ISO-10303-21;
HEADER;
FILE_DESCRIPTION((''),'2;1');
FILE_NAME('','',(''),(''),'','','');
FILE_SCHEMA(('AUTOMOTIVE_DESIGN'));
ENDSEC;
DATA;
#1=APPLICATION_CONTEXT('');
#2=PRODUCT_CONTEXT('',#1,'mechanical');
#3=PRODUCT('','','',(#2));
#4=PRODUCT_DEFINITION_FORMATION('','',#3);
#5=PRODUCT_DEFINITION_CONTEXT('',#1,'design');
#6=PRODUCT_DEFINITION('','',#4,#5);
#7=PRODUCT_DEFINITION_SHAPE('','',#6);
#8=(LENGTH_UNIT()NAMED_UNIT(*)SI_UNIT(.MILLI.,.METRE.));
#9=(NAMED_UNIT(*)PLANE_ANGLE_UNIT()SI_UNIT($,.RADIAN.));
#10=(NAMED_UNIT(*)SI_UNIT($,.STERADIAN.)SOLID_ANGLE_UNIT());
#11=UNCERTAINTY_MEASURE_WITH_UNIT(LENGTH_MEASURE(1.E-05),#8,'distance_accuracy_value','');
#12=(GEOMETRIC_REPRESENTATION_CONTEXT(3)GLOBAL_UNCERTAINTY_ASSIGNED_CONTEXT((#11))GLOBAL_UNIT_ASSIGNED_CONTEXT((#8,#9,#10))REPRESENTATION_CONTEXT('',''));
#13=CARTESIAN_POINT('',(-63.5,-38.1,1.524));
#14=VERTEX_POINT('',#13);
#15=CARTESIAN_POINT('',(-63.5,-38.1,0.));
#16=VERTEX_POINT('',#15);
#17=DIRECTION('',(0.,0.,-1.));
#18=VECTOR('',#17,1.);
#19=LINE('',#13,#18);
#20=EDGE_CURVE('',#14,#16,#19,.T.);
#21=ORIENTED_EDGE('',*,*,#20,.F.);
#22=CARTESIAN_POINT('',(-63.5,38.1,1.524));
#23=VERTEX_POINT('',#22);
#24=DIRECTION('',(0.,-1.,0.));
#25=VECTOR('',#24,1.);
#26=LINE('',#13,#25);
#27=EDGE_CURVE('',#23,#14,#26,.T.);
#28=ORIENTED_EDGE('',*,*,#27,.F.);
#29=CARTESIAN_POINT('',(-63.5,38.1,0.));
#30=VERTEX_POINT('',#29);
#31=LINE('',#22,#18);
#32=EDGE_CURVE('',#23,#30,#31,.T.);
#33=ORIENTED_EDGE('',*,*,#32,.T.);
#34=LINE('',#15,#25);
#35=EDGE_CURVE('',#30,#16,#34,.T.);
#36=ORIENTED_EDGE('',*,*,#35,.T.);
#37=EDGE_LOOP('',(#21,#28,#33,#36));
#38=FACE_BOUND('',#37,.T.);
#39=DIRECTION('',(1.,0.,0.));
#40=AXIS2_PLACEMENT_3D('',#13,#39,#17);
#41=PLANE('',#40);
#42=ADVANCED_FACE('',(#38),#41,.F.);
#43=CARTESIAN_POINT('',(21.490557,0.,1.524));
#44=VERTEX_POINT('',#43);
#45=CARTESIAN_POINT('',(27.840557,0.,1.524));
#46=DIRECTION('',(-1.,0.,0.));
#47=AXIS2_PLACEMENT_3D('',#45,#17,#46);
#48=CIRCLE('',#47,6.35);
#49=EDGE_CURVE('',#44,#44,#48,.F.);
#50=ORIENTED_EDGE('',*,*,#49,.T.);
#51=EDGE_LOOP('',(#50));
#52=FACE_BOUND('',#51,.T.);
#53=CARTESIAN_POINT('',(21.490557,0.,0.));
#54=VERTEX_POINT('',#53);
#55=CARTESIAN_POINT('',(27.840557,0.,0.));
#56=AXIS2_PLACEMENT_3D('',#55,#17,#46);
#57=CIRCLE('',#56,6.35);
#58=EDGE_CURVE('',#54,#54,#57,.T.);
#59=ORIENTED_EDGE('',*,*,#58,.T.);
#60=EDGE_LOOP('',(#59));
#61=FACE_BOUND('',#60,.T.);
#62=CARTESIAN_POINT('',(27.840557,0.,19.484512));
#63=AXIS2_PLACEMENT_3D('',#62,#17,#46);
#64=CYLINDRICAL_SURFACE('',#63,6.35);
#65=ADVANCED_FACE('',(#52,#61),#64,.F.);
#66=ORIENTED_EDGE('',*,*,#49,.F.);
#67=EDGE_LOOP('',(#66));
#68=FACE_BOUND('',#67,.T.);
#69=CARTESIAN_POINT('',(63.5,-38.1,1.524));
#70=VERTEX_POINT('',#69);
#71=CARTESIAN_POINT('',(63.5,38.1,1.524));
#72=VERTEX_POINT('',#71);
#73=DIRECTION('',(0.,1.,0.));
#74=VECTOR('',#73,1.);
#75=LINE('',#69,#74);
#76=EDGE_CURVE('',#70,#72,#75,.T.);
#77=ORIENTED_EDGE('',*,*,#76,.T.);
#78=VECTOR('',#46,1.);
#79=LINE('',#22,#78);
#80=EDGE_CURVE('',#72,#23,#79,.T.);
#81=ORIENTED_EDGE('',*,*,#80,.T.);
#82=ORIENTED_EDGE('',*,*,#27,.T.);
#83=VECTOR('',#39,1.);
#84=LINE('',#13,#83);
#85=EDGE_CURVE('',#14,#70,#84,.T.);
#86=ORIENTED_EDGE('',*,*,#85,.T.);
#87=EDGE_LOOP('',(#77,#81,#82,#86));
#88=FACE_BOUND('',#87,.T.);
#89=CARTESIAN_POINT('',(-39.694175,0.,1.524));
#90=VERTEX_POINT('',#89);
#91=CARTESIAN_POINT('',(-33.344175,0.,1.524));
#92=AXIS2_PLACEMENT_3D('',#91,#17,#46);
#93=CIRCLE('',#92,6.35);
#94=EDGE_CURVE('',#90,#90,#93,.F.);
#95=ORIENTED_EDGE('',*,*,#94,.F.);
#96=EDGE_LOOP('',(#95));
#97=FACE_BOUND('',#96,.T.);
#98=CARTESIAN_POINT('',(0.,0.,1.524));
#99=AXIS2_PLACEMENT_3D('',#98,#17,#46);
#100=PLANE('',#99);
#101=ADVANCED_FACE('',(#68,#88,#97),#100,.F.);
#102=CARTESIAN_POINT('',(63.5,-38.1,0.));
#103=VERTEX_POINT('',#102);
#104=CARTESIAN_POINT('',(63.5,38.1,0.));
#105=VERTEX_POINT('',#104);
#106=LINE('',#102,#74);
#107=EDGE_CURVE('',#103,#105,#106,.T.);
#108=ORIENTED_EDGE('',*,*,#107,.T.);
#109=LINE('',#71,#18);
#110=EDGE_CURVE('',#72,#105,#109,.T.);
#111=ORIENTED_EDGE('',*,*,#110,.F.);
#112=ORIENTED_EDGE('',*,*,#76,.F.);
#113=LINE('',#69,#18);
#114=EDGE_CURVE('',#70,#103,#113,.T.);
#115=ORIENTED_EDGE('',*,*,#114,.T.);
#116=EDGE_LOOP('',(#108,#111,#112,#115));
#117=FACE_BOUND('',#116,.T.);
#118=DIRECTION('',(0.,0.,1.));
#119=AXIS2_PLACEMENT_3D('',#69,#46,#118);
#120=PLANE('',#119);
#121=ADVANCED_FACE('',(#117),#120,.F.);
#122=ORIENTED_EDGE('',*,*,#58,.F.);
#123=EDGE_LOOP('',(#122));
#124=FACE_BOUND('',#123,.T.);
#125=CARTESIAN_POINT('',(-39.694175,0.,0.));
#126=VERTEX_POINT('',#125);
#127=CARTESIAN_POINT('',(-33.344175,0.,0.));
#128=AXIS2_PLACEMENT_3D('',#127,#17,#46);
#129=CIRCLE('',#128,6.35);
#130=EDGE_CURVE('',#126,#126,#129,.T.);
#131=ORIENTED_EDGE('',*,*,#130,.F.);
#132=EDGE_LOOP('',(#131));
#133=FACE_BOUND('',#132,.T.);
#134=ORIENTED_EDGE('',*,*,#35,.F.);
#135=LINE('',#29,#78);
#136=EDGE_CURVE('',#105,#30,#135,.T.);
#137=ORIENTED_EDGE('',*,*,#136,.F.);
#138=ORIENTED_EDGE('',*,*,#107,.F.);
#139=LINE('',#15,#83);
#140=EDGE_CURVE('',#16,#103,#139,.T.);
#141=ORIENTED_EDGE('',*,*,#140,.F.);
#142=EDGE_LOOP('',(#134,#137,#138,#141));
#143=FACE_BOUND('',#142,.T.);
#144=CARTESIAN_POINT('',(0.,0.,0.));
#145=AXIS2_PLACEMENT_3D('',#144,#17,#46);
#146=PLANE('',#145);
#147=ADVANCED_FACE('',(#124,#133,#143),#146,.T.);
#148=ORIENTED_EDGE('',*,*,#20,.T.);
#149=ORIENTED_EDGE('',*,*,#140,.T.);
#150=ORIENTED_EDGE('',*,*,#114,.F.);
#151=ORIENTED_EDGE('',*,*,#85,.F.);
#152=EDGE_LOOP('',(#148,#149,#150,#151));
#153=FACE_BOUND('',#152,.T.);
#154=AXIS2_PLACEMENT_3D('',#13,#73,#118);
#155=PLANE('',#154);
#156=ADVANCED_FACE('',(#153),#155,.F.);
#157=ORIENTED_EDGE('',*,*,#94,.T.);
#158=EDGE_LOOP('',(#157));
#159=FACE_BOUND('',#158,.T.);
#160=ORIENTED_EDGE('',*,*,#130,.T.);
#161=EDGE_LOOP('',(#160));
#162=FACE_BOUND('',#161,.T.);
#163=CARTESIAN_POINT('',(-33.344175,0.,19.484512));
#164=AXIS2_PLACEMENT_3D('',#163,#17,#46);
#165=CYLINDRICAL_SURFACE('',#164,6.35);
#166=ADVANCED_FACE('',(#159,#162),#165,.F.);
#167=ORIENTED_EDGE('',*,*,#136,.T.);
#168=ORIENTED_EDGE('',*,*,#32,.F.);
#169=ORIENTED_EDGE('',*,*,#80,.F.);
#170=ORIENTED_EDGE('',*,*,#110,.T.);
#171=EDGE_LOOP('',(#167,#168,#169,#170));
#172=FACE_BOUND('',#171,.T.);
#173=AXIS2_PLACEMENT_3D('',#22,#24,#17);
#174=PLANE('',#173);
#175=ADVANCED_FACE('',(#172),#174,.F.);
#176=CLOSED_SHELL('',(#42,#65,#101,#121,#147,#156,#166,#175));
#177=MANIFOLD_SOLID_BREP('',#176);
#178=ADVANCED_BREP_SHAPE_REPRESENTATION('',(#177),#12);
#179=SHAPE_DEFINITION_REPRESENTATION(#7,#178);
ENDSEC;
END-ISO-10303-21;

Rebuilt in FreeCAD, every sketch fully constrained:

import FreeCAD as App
import Part
import Sketcher
Q = App.Units.Quantity

doc = App.newDocument("Part")
body = doc.addObject("PartDesign::Body", "Body")

# Sketch on XY plane
sketch1 = doc.addObject("Sketcher::SketchObject", "Sketch")
body.addObject(sketch1)
sketch1.AttachmentSupport = (doc.XY_Plane, [""])
sketch1.MapMode = "FlatFace"
sketch1.addGeometry([
    Part.LineSegment(App.Vector(-64, 38, 0), App.Vector(-64, -38, 0)),
    Part.LineSegment(App.Vector(-64, -38, 0), App.Vector(64, -38, 0)),
    Part.LineSegment(App.Vector(64, -38, 0), App.Vector(64, 38, 0)),
    Part.LineSegment(App.Vector(64, 38, 0), App.Vector(-64, 38, 0)),
], False)
sketch1.addConstraint([
    Sketcher.Constraint("Coincident", 0, 2, 1, 1),
    Sketcher.Constraint("Coincident", 1, 2, 2, 1),
    Sketcher.Constraint("Coincident", 2, 2, 3, 1),
    Sketcher.Constraint("Coincident", 3, 2, 0, 1),
    Sketcher.Constraint("Vertical", 0),
    Sketcher.Constraint("Horizontal", 1),
    Sketcher.Constraint("Vertical", 2),
    Sketcher.Constraint("Horizontal", 3),
    Sketcher.Constraint("Symmetric", 0, 2, 2, 2, -1, 1),
    Sketcher.Constraint("DistanceX", 1, 1, 1, 2, Q("5 in")),
    Sketcher.Constraint("DistanceY", 0, 2, 0, 1, Q("3 in")),
])
pad1 = doc.addObject("PartDesign::Pad", "Pad")
body.addObject(pad1)
pad1.Profile = sketch1
pad1.Length = Q("0.06 in")

# Sketch on XY plane
sketch2 = doc.addObject("Sketcher::SketchObject", "Sketch001")
body.addObject(sketch2)
sketch2.AttachmentSupport = (doc.XY_Plane, [""])
sketch2.MapMode = "FlatFace"
sketch2.addGeometry([
    Part.Circle(App.Vector(28, 0, 0), App.Vector(0, 0, 1), 6),
    Part.Circle(App.Vector(-33, 0, 0), App.Vector(0, 0, 1), 6),
], False)
sketch2.addConstraint([
    Sketcher.Constraint("Equal", 0, 1),
    Sketcher.Constraint("PointOnObject", 0, 3, -1),
    Sketcher.Constraint("PointOnObject", 1, 3, -1),
    Sketcher.Constraint("Diameter", 0, Q("0.5 in")),
    Sketcher.Constraint("DistanceX", 1, 3, 0, 3, 61.184731),
    Sketcher.Constraint("DistanceX", -1, 1, 0, 3, 27.840557),
])
pocket1 = doc.addObject("PartDesign::Pocket", "Pocket")
body.addObject(pocket1)
pocket1.Profile = sketch2
pocket1.Length = Q("0.06 in")
pocket1.Reversed = True

doc.recompute()
